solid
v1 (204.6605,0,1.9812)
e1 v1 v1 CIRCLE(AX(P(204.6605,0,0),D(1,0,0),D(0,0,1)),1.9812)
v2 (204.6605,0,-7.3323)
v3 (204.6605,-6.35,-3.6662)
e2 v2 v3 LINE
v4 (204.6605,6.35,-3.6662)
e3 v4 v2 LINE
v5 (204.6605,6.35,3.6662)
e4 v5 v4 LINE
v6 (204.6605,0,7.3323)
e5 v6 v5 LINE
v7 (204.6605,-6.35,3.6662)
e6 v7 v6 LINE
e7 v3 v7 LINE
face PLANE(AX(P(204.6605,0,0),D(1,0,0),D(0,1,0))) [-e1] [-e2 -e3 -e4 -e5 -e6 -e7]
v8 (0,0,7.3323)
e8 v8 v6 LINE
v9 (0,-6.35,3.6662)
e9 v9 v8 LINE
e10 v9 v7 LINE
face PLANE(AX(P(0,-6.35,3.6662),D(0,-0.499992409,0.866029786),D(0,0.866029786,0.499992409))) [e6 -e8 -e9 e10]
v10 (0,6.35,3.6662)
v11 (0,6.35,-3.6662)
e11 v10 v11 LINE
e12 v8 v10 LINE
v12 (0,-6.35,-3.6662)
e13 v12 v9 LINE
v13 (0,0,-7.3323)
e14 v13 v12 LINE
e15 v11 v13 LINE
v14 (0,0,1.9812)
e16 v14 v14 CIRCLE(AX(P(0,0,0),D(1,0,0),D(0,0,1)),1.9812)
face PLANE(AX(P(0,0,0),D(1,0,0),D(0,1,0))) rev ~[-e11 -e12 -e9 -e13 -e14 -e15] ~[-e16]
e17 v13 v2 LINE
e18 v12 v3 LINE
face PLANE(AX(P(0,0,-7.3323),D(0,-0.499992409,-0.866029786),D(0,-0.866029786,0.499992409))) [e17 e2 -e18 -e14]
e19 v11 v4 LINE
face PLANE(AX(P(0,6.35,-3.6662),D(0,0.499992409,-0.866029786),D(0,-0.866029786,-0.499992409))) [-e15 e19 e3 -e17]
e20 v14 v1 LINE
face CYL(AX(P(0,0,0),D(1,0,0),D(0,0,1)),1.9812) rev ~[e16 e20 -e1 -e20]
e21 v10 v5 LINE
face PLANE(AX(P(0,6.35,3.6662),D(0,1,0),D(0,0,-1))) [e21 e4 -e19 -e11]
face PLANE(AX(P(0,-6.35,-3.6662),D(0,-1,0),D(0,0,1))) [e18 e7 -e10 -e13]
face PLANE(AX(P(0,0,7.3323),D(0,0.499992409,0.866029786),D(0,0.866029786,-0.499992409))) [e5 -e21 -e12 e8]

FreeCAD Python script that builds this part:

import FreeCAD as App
import Part
import Sketcher
Q = App.Units.Quantity

doc = App.newDocument("Part")
params = doc.addObject("Spreadsheet::Sheet", "Params")
for row, (alias, value) in enumerate([
    ("pad1_length", "8.0575 in"),
    ("sketch2_diameter", "0.156 in"),
    ("hole_diameter", "0.156 in"),
], start=1):
    params.set(f"A{row}", alias)
    params.set(f"B{row}", "=" + value)
    params.setAlias(f"B{row}", alias)

body = doc.addObject("PartDesign::Body", "Body")

sketch1 = doc.addObject("Sketcher::SketchObject", "Sketch")
body.addObject(sketch1)
sketch1.AttachmentSupport = (doc.YZ_Plane, [""])
sketch1.MapMode = "FlatFace"
sketch1.addGeometry([
    Part.LineSegment(App.Vector(-6, 4, 0), App.Vector(-6, -4, 0)),
    Part.LineSegment(App.Vector(-6, -4, 0), App.Vector(0, -7, 0)),
    Part.LineSegment(App.Vector(0, -7, 0), App.Vector(6, -4, 0)),
    Part.LineSegment(App.Vector(6, -4, 0), App.Vector(6, 4, 0)),
    Part.LineSegment(App.Vector(6, 4, 0), App.Vector(0, 7, 0)),
    Part.LineSegment(App.Vector(0, 7, 0), App.Vector(-6, 4, 0)),
], False)
sketch1.addConstraint([
    Sketcher.Constraint("Coincident", 0, 2, 1, 1),
    Sketcher.Constraint("Coincident", 1, 2, 2, 1),
    Sketcher.Constraint("Coincident", 2, 2, 3, 1),
    Sketcher.Constraint("Coincident", 3, 2, 4, 1),
    Sketcher.Constraint("Coincident", 4, 2, 5, 1),
    Sketcher.Constraint("Coincident", 5, 2, 0, 1),
    Sketcher.Constraint("Vertical", 0),
    Sketcher.Constraint("Vertical", 3),
    Sketcher.Constraint("Symmetric", 0, 2, 3, 2, -1, 1),
    Sketcher.Constraint("Symmetric", 1, 2, 4, 2, -1, 1),
    Sketcher.Constraint("PointOnObject", 1, 2, -2),
    Sketcher.Constraint("Parallel", 2, 5),
    Sketcher.Constraint("Horizontal", 0, 2, 2, 2),
    Sketcher.Constraint("DistanceX", 0, 2, 2, 2, Q("0.5 in")),
    Sketcher.Constraint("Angle", 1, Q("-29.9995 deg")),
    Sketcher.Constraint("DistanceY", 1, 2, 3, 2, Q("0.433 in")),
])
pad1 = doc.addObject("PartDesign::Pad", "Pad")
body.addObject(pad1)
pad1.Profile = sketch1
pad1.setExpression("Length", "Params.pad1_length")

sketch2 = doc.addObject("Sketcher::SketchObject", "Sketch001")
body.addObject(sketch2)
sketch2.AttachmentSupport = (doc.YZ_Plane, [""])
sketch2.MapMode = "FlatFace"
sketch2.addGeometry(Part.Circle(App.Vector(0, 0, 0), App.Vector(0, 0, 1), 2), False)
sketch2.addConstraint([
    Sketcher.Constraint("Coincident", 0, 3, -1, 1),
    Sketcher.Constraint("Diameter", 0, Q("0.156 in")),
])
sketch2.setExpression("Constraints[1]", "Params.sketch2_diameter")
doc.recompute()
hole = doc.addObject("PartDesign::Hole", "Hole")
body.addObject(hole)
hole.Profile = sketch2
hole.ThreadType = "None"
hole.setExpression("Diameter", "Params.hole_diameter")
hole.DepthType = "ThroughAll"
hole.Reversed = True

doc.recompute()
